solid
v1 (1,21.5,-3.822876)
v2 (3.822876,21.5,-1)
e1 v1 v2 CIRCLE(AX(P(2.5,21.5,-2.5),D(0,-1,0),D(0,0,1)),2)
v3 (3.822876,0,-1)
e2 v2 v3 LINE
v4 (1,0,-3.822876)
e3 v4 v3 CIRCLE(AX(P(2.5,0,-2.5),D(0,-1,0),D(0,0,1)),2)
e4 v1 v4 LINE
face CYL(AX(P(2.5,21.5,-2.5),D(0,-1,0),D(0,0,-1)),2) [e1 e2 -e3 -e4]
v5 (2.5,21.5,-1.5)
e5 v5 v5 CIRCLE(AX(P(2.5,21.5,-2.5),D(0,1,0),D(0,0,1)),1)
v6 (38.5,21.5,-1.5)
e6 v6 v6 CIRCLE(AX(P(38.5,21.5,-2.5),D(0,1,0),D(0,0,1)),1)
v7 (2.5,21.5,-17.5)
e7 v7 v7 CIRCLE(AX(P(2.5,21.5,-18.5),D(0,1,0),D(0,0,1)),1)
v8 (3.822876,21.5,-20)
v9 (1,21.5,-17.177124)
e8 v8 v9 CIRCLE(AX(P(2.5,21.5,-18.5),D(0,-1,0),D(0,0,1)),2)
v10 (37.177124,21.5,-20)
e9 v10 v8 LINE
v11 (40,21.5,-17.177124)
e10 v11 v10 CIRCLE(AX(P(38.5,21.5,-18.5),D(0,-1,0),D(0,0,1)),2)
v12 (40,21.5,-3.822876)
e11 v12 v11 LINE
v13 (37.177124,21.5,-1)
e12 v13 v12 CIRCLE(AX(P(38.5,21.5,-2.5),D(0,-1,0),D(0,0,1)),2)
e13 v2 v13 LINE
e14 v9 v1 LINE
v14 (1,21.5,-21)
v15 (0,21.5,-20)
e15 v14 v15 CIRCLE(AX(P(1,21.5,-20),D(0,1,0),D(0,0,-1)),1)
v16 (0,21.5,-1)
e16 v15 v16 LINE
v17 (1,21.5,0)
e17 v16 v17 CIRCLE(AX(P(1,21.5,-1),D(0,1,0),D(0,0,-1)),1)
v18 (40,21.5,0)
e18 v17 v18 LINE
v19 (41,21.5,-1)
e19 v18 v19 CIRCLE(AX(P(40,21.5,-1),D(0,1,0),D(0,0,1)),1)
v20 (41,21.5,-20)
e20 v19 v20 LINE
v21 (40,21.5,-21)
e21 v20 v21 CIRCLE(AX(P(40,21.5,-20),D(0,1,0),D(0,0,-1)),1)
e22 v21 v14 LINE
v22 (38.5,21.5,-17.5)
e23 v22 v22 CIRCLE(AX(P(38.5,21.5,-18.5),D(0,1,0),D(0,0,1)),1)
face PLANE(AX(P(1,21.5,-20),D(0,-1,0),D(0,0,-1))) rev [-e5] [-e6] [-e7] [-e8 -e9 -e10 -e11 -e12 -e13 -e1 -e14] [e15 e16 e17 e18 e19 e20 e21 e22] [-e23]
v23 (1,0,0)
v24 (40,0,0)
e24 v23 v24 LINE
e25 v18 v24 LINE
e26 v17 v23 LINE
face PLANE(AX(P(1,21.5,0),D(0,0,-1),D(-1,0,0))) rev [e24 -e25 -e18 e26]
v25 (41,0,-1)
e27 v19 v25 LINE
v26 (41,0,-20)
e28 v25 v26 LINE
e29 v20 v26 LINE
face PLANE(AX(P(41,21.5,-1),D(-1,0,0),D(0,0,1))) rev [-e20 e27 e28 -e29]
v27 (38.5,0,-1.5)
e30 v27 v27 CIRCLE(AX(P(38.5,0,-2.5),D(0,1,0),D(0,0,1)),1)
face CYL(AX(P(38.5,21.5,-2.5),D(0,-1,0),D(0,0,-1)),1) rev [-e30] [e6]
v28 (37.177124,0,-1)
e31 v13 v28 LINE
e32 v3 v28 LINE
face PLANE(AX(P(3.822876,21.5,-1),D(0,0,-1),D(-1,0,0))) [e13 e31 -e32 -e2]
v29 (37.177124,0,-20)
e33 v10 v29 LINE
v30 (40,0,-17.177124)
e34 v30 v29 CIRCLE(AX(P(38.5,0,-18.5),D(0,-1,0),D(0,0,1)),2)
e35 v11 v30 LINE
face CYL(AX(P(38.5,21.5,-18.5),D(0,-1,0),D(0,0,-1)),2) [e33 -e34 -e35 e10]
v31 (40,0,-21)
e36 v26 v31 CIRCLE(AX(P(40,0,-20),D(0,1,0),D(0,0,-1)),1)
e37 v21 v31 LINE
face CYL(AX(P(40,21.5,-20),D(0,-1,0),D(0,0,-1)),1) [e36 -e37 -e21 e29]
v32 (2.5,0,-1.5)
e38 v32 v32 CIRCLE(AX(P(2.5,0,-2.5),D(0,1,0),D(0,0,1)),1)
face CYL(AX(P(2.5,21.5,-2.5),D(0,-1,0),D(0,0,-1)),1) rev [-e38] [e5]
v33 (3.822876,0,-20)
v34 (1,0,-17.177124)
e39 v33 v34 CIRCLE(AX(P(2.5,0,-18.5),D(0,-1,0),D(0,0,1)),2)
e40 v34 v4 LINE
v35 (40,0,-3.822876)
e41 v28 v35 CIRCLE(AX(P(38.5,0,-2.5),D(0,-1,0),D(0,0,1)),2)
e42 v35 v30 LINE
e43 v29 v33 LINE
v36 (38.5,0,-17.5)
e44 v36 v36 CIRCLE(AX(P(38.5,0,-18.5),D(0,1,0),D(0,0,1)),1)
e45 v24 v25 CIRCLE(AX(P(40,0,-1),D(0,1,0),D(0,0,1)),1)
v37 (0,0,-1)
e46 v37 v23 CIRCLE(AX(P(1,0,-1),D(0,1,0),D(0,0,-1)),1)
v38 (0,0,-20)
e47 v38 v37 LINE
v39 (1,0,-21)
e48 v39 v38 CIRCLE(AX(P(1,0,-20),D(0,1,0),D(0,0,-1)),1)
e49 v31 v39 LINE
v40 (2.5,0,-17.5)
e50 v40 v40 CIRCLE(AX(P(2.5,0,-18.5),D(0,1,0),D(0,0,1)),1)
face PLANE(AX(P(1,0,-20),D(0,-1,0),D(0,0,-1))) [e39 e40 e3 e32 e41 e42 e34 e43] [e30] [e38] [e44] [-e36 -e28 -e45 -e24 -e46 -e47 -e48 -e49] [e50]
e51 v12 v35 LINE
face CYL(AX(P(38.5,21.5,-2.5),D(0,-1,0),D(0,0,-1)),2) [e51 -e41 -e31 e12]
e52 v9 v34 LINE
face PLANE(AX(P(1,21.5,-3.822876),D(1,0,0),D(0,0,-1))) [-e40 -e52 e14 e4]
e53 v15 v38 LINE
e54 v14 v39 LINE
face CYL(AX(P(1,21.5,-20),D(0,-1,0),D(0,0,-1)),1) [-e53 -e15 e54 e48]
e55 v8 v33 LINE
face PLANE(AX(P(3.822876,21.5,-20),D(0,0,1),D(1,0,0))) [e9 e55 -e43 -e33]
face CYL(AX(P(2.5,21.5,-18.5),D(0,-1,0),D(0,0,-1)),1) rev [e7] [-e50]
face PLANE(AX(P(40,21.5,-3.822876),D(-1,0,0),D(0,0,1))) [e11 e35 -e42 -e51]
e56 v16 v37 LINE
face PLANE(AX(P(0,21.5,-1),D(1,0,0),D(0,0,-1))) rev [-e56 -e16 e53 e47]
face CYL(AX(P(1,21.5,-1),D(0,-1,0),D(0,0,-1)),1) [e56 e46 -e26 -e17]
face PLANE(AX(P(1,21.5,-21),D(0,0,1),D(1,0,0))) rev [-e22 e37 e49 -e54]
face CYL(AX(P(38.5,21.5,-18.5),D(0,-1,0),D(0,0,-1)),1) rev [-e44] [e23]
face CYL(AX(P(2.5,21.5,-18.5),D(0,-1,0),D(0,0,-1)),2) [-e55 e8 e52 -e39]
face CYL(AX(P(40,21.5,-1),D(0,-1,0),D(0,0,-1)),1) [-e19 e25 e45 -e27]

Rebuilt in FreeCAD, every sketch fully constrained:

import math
import FreeCAD as App
import Part
import Sketcher
from FreeCAD import Vector
Q = App.Units.Quantity

doc = App.newDocument("Part")
body = doc.addObject("PartDesign::Body", "Body")

# Sketch on XZ plane
sketch1 = body.newObject("Sketcher::SketchObject", "Sketch")
sketch1.AttachmentSupport = (doc.getObject("XZ_Plane"), [""])
sketch1.MapMode = "FlatFace"
sketch1.addGeometry(Part.LineSegment(Vector(1, 0, 0), Vector(40, 0, 0)), False)
sketch1.addGeometry(Part.ArcOfCircle(Part.Circle(Vector(40, -1, 0), Vector(0, 0, 1), 1), math.radians(0), math.radians(90)), False)
sketch1.addGeometry(Part.LineSegment(Vector(41, -1, 0), Vector(41, -20, 0)), False)
sketch1.addGeometry(Part.ArcOfCircle(Part.Circle(Vector(40, -20, 0), Vector(0, 0, 1), 1), math.radians(-90), math.radians(0)), False)
sketch1.addGeometry(Part.LineSegment(Vector(40, -21, 0), Vector(1, -21, 0)), False)
sketch1.addGeometry(Part.ArcOfCircle(Part.Circle(Vector(1, -20, 0), Vector(0, 0, 1), 1), math.radians(-180), math.radians(-90)), False)
sketch1.addGeometry(Part.LineSegment(Vector(0, -20, 0), Vector(0, -1, 0)), False)
sketch1.addGeometry(Part.ArcOfCircle(Part.Circle(Vector(1, -1, 0), Vector(0, 0, 1), 1), math.radians(90), math.radians(180)), False)
sketch1.addGeometry(Part.Circle(Vector(2.5, -2.5, 0), Vector(0, 0, 1), 1), False)
sketch1.addGeometry(Part.Circle(Vector(38.5, -2.5, 0), Vector(0, 0, 1), 1), False)
sketch1.addGeometry(Part.Circle(Vector(2.5, -18.5, 0), Vector(0, 0, 1), 1), False)
sketch1.addGeometry(Part.ArcOfCircle(Part.Circle(Vector(2.5, -18.5, 0), Vector(0, 0, 1), 2), math.radians(-49), math.radians(139)), False)
sketch1.addGeometry(Part.LineSegment(Vector(3.8, -20, 0), Vector(37.2, -20, 0)), False)
sketch1.addGeometry(Part.ArcOfCircle(Part.Circle(Vector(38.5, -18.5, 0), Vector(0, 0, 1), 2), math.radians(41), math.radians(229)), False)
sketch1.addGeometry(Part.LineSegment(Vector(40, -17.2, 0), Vector(40, -3.8, 0)), False)
sketch1.addGeometry(Part.ArcOfCircle(Part.Circle(Vector(38.5, -2.5, 0), Vector(0, 0, 1), 2), math.radians(131), math.radians(319)), False)
sketch1.addGeometry(Part.LineSegment(Vector(37.2, -1, 0), Vector(3.8, -1, 0)), False)
sketch1.addGeometry(Part.ArcOfCircle(Part.Circle(Vector(2.5, -2.5, 0), Vector(0, 0, 1), 2), math.radians(-139), math.radians(49)), False)
sketch1.addGeometry(Part.LineSegment(Vector(1, -3.8, 0), Vector(1, -17.2, 0)), False)
sketch1.addGeometry(Part.Circle(Vector(38.5, -18.5, 0), Vector(0, 0, 1), 1), False)
sketch1.addConstraint(Sketcher.Constraint("Tangent", 0, 2, 1, 2))
sketch1.addConstraint(Sketcher.Constraint("Tangent", 1, 1, 2, 1))
sketch1.addConstraint(Sketcher.Constraint("Tangent", 2, 2, 3, 2))
sketch1.addConstraint(Sketcher.Constraint("Tangent", 3, 1, 4, 1))
sketch1.addConstraint(Sketcher.Constraint("Tangent", 4, 2, 5, 2))
sketch1.addConstraint(Sketcher.Constraint("Tangent", 5, 1, 6, 1))
sketch1.addConstraint(Sketcher.Constraint("Tangent", 6, 2, 7, 2))
sketch1.addConstraint(Sketcher.Constraint("Tangent", 7, 1, 0, 1))
sketch1.addConstraint(Sketcher.Constraint("Coincident", 11, 1, 12, 1))
sketch1.addConstraint(Sketcher.Constraint("Coincident", 12, 2, 13, 2))
sketch1.addConstraint(Sketcher.Constraint("Coincident", 13, 1, 14, 1))
sketch1.addConstraint(Sketcher.Constraint("Coincident", 14, 2, 15, 2))
sketch1.addConstraint(Sketcher.Constraint("Coincident", 15, 1, 16, 1))
sketch1.addConstraint(Sketcher.Constraint("Coincident", 16, 2, 17, 2))
sketch1.addConstraint(Sketcher.Constraint("Coincident", 17, 1, 18, 1))
sketch1.addConstraint(Sketcher.Constraint("Coincident", 18, 2, 11, 2))
sketch1.addConstraint(Sketcher.Constraint("Horizontal", 0))
sketch1.addConstraint(Sketcher.Constraint("Vertical", 2))
sketch1.addConstraint(Sketcher.Constraint("Horizontal", 4))
sketch1.addConstraint(Sketcher.Constraint("Vertical", 6))
sketch1.addConstraint(Sketcher.Constraint("Horizontal", 12))
sketch1.addConstraint(Sketcher.Constraint("Vertical", 14))
sketch1.addConstraint(Sketcher.Constraint("Horizontal", 16))
sketch1.addConstraint(Sketcher.Constraint("Vertical", 18))
sketch1.addConstraint(Sketcher.Constraint("Coincident", 11, 3, 10, 3))
sketch1.addConstraint(Sketcher.Constraint("Coincident", 15, 3, 9, 3))
sketch1.addConstraint(Sketcher.Constraint("Coincident", 17, 3, 8, 3))
sketch1.addConstraint(Sketcher.Constraint("Coincident", 19, 3, 13, 3))
sketch1.addConstraint(Sketcher.Constraint("Equal", 1, 3))
sketch1.addConstraint(Sketcher.Constraint("Equal", 3, 5))
sketch1.addConstraint(Sketcher.Constraint("Equal", 5, 7))
sketch1.addConstraint(Sketcher.Constraint("Equal", 7, 8))
sketch1.addConstraint(Sketcher.Constraint("Equal", 8, 9))
sketch1.addConstraint(Sketcher.Constraint("Equal", 9, 10))
sketch1.addConstraint(Sketcher.Constraint("Equal", 11, 13))
sketch1.addConstraint(Sketcher.Constraint("Equal", 13, 15))
sketch1.addConstraint(Sketcher.Constraint("Equal", 15, 17))
sketch1.addConstraint(Sketcher.Constraint("Equal", 10, 19))
sketch1.addConstraint(Sketcher.Constraint("PointOnObject", 0, 2, -1))
sketch1.addConstraint(Sketcher.Constraint("PointOnObject", 5, 1, -2))
sketch1.addConstraint(Sketcher.Constraint("Horizontal", 8, 3, 9, 3))
sketch1.addConstraint(Sketcher.Constraint("Horizontal", 11, 3, 13, 3))
sketch1.addConstraint(Sketcher.Constraint("Horizontal", 5, 1, 11, 1))
sketch1.addConstraint(Sketcher.Constraint("Horizontal", 6, 2, 15, 1))
sketch1.addConstraint(Sketcher.Constraint("Horizontal", 14, 2, 17, 1))
sketch1.addConstraint(Sketcher.Constraint("Horizontal", 13, 1, 18, 2))
sketch1.addConstraint(Sketcher.Constraint("Vertical", 8, 3, 10, 3))
sketch1.addConstraint(Sketcher.Constraint("Vertical", 3, 1, 13, 1))
sketch1.addConstraint(Sketcher.Constraint("Vertical", 12, 2, 15, 1))
sketch1.addConstraint(Sketcher.Constraint("Vertical", 7, 1, 17, 1))
sketch1.addConstraint(Sketcher.Constraint("Diameter", 8, Q("2 mm")))
sketch1.addConstraint(Sketcher.Constraint("Radius", 11, Q("2 mm")))
sketch1.addConstraint(Sketcher.Constraint("DistanceX", 0, 1, 0, 2, Q("39 mm")))
sketch1.addConstraint(Sketcher.Constraint("DistanceY", 2, 2, 2, 1, Q("19 mm")))
sketch1.addConstraint(Sketcher.Constraint("DistanceX", 8, 3, 9, 3, Q("36 mm")))
sketch1.addConstraint(Sketcher.Constraint("DistanceY", 10, 3, 8, 3, Q("16 mm")))
pad1 = body.newObject("PartDesign::Pad", "Pad")
pad1.Profile = sketch1
pad1.Length = 21.5
pad1.Reversed = True

doc.recompute()
